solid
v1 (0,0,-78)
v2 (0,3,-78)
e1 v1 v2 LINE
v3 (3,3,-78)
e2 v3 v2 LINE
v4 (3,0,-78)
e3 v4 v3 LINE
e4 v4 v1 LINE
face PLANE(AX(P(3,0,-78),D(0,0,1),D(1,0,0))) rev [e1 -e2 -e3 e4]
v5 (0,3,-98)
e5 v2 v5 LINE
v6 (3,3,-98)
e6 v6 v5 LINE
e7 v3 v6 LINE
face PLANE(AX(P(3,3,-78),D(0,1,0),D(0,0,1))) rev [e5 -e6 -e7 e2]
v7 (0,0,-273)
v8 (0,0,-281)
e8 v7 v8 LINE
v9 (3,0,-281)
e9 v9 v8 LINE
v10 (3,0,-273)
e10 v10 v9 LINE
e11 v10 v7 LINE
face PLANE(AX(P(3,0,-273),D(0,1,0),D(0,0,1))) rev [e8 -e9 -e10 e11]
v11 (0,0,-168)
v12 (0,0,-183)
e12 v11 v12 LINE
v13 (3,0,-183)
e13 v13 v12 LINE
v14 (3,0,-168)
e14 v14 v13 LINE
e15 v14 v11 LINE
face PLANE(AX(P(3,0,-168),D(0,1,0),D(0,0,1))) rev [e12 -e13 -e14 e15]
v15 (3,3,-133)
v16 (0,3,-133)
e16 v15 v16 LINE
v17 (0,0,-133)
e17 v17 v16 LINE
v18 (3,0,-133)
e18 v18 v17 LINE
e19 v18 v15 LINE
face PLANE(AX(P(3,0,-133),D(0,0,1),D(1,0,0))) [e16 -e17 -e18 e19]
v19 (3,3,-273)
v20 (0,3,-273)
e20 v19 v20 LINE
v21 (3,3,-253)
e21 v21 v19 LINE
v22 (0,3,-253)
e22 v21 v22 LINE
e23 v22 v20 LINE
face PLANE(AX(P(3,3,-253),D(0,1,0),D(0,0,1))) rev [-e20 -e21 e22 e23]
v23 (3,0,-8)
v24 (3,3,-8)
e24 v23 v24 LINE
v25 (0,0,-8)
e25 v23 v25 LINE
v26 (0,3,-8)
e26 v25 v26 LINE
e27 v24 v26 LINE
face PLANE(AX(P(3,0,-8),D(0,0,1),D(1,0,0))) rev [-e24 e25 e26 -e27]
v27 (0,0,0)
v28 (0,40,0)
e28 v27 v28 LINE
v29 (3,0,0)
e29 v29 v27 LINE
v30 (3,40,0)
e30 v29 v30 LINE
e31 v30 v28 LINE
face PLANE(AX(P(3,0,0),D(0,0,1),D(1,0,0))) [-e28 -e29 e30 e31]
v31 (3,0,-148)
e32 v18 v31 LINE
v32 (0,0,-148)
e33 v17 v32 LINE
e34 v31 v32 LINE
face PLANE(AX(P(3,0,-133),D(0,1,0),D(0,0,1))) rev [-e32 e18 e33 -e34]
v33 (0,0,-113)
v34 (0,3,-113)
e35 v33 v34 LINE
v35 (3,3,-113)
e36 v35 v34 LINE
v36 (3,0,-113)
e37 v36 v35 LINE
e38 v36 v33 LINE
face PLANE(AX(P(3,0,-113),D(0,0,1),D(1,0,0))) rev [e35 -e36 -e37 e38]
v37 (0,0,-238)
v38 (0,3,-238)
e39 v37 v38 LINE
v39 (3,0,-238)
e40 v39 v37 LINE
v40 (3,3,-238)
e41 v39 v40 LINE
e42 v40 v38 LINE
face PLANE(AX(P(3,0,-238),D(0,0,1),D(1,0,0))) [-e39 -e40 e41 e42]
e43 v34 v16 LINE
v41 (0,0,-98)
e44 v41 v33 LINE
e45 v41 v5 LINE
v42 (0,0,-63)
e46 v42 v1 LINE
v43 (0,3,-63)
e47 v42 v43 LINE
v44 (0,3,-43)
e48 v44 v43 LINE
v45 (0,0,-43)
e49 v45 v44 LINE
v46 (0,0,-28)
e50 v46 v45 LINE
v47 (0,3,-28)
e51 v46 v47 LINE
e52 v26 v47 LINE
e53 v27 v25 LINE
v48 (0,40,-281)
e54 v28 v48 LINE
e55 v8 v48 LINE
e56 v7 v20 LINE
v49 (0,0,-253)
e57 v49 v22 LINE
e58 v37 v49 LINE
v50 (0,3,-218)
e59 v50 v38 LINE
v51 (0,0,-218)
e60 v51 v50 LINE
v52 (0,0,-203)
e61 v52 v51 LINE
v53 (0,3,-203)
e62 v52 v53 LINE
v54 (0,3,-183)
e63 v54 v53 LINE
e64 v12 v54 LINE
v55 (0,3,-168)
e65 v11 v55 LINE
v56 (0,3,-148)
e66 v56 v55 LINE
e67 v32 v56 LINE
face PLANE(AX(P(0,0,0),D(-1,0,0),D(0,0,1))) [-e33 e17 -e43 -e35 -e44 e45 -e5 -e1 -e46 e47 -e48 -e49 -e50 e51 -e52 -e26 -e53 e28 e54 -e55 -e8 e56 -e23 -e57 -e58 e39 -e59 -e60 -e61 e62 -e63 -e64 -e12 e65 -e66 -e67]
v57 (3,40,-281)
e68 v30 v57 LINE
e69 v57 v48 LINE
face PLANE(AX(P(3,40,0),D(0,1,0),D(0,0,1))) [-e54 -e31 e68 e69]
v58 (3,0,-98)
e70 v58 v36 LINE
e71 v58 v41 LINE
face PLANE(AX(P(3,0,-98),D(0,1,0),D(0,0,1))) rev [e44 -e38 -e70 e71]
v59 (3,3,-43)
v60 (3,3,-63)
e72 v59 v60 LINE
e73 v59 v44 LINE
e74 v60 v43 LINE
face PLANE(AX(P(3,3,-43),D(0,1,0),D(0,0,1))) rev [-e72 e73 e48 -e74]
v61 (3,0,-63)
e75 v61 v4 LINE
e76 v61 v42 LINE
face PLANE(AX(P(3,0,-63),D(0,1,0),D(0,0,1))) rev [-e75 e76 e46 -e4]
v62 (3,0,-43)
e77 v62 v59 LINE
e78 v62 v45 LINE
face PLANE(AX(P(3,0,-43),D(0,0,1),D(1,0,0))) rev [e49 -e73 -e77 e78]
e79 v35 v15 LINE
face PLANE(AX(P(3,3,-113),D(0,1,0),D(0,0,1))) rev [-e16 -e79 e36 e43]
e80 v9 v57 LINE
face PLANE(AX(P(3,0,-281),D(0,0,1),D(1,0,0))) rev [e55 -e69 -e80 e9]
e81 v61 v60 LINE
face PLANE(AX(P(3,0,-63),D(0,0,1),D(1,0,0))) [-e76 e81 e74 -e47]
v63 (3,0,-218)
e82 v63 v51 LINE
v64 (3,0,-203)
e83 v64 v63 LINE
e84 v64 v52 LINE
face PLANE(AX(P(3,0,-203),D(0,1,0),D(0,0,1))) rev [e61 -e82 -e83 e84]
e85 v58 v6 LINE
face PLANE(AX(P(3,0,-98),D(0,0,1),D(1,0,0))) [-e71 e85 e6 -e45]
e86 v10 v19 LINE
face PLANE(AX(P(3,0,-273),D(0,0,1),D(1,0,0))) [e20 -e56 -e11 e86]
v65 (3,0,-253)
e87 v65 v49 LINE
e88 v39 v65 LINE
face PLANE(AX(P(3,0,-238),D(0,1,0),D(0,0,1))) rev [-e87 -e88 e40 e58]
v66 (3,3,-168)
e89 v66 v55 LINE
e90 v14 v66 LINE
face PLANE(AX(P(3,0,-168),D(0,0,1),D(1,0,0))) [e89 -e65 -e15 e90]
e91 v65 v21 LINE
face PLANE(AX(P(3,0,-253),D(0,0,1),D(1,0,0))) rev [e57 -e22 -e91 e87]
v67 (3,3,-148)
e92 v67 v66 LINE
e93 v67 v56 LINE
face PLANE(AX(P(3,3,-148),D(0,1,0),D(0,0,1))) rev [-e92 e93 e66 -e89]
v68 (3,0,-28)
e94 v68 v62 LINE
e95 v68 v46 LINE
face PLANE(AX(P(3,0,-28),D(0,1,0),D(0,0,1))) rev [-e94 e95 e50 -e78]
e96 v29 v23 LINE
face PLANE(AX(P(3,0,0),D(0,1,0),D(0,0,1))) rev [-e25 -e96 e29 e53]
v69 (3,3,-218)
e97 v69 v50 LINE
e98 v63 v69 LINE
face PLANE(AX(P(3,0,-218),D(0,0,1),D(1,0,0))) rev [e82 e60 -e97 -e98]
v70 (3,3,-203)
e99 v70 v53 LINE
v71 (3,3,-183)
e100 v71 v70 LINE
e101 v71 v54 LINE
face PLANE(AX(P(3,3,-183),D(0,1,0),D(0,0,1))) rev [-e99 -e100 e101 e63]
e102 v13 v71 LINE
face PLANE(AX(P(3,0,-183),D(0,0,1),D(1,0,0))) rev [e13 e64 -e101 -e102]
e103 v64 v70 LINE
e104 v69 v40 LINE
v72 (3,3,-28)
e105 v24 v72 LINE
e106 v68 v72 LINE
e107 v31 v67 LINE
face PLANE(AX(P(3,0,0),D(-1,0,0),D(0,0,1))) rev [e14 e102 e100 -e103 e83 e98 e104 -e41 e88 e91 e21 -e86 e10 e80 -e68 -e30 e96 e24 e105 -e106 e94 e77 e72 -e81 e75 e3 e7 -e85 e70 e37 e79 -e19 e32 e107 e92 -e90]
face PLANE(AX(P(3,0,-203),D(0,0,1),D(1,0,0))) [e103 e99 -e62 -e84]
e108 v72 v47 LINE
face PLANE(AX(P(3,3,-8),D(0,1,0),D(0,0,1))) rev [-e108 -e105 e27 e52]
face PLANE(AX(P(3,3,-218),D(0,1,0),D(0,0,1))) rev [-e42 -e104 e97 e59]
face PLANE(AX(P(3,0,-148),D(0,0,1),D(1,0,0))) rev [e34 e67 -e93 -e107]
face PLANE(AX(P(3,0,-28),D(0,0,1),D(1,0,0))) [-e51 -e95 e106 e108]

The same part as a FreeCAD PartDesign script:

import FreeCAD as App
import Part
import Sketcher
from FreeCAD import Vector
Q = App.Units.Quantity

doc = App.newDocument("Part")
body = doc.addObject("PartDesign::Body", "Body")

sketch1 = doc.addObject("Sketcher::SketchObject", "Sketch")
body.addObject(sketch1)
sketch1.AttachmentSupport = (doc.YZ_Plane, [""])
sketch1.MapMode = "FlatFace"
sketch1.addGeometry([
    Part.LineSegment(Vector(0, -28, 0), Vector(0, -43, 0)),
    Part.LineSegment(Vector(0, -43, 0), Vector(3, -43, 0)),
    Part.LineSegment(Vector(3, -43, 0), Vector(3, -63, 0)),
    Part.LineSegment(Vector(3, -63, 0), Vector(0, -63, 0)),
    Part.LineSegment(Vector(0, -63, 0), Vector(0, -78, 0)),
    Part.LineSegment(Vector(0, -78, 0), Vector(3, -78, 0)),
    Part.LineSegment(Vector(3, -78, 0), Vector(3, -98, 0)),
    Part.LineSegment(Vector(3, -98, 0), Vector(0, -98, 0)),
    Part.LineSegment(Vector(0, -98, 0), Vector(0, -113, 0)),
    Part.LineSegment(Vector(0, -113, 0), Vector(3, -113, 0)),
    Part.LineSegment(Vector(3, -113, 0), Vector(3, -133, 0)),
    Part.LineSegment(Vector(3, -133, 0), Vector(0, -133, 0)),
    Part.LineSegment(Vector(0, -133, 0), Vector(0, -148, 0)),
    Part.LineSegment(Vector(0, -148, 0), Vector(3, -148, 0)),
    Part.LineSegment(Vector(3, -148, 0), Vector(3, -168, 0)),
    Part.LineSegment(Vector(3, -168, 0), Vector(0, -168, 0)),
    Part.LineSegment(Vector(0, -168, 0), Vector(0, -183, 0)),
    Part.LineSegment(Vector(0, -183, 0), Vector(3, -183, 0)),
    Part.LineSegment(Vector(3, -183, 0), Vector(3, -203, 0)),
    Part.LineSegment(Vector(3, -203, 0), Vector(0, -203, 0)),
    Part.LineSegment(Vector(0, -203, 0), Vector(0, -218, 0)),
    Part.LineSegment(Vector(0, -218, 0), Vector(3, -218, 0)),
    Part.LineSegment(Vector(3, -218, 0), Vector(3, -238, 0)),
    Part.LineSegment(Vector(3, -238, 0), Vector(0, -238, 0)),
    Part.LineSegment(Vector(0, -238, 0), Vector(0, -253, 0)),
    Part.LineSegment(Vector(0, -253, 0), Vector(3, -253, 0)),
    Part.LineSegment(Vector(3, -253, 0), Vector(3, -273, 0)),
    Part.LineSegment(Vector(3, -273, 0), Vector(0, -273, 0)),
    Part.LineSegment(Vector(0, -273, 0), Vector(0, -281, 0)),
    Part.LineSegment(Vector(0, -281, 0), Vector(40, -281, 0)),
    Part.LineSegment(Vector(40, -281, 0), Vector(40, 0, 0)),
    Part.LineSegment(Vector(40, 0, 0), Vector(0, 0, 0)),
    Part.LineSegment(Vector(0, 0, 0), Vector(0, -8, 0)),
    Part.LineSegment(Vector(0, -8, 0), Vector(3, -8, 0)),
    Part.LineSegment(Vector(3, -8, 0), Vector(3, -28, 0)),
    Part.LineSegment(Vector(3, -28, 0), Vector(0, -28, 0)),
], False)
sketch1.addConstraint([
    Sketcher.Constraint("Coincident", 0, 2, 1, 1),
    Sketcher.Constraint("Coincident", 1, 2, 2, 1),
    Sketcher.Constraint("Coincident", 2, 2, 3, 1),
    Sketcher.Constraint("Coincident", 3, 2, 4, 1),
    Sketcher.Constraint("Coincident", 4, 2, 5, 1),
    Sketcher.Constraint("Coincident", 5, 2, 6, 1),
    Sketcher.Constraint("Coincident", 6, 2, 7, 1),
    Sketcher.Constraint("Coincident", 7, 2, 8, 1),
    Sketcher.Constraint("Coincident", 8, 2, 9, 1),
    Sketcher.Constraint("Coincident", 9, 2, 10, 1),
    Sketcher.Constraint("Coincident", 10, 2, 11, 1),
    Sketcher.Constraint("Coincident", 11, 2, 12, 1),
    Sketcher.Constraint("Coincident", 12, 2, 13, 1),
    Sketcher.Constraint("Coincident", 13, 2, 14, 1),
    Sketcher.Constraint("Coincident", 14, 2, 15, 1),
    Sketcher.Constraint("Coincident", 15, 2, 16, 1),
    Sketcher.Constraint("Coincident", 16, 2, 17, 1),
    Sketcher.Constraint("Coincident", 17, 2, 18, 1),
    Sketcher.Constraint("Coincident", 18, 2, 19, 1),
    Sketcher.Constraint("Coincident", 19, 2, 20, 1),
    Sketcher.Constraint("Coincident", 20, 2, 21, 1),
    Sketcher.Constraint("Coincident", 21, 2, 22, 1),
    Sketcher.Constraint("Coincident", 22, 2, 23, 1),
    Sketcher.Constraint("Coincident", 23, 2, 24, 1),
    Sketcher.Constraint("Coincident", 24, 2, 25, 1),
    Sketcher.Constraint("Coincident", 25, 2, 26, 1),
    Sketcher.Constraint("Coincident", 26, 2, 27, 1),
    Sketcher.Constraint("Coincident", 27, 2, 28, 1),
    Sketcher.Constraint("Coincident", 28, 2, 29, 1),
    Sketcher.Constraint("Coincident", 29, 2, 30, 1),
    Sketcher.Constraint("Coincident", 30, 2, 31, 1),
    Sketcher.Constraint("Coincident", 31, 2, 32, 1),
    Sketcher.Constraint("Coincident", 32, 2, 33, 1),
    Sketcher.Constraint("Coincident", 33, 2, 34, 1),
    Sketcher.Constraint("Coincident", 34, 2, 35, 1),
    Sketcher.Constraint("Coincident", 35, 2, 0, 1),
    Sketcher.Constraint("Vertical", 0),
    Sketcher.Constraint("Horizontal", 1),
    Sketcher.Constraint("Vertical", 2),
    Sketcher.Constraint("Horizontal", 3),
    Sketcher.Constraint("Vertical", 4),
    Sketcher.Constraint("Horizontal", 5),
    Sketcher.Constraint("Vertical", 6),
    Sketcher.Constraint("Horizontal", 7),
    Sketcher.Constraint("Vertical", 8),
    Sketcher.Constraint("Horizontal", 9),
    Sketcher.Constraint("Vertical", 10),
    Sketcher.Constraint("Horizontal", 11),
    Sketcher.Constraint("Vertical", 12),
    Sketcher.Constraint("Horizontal", 13),
    Sketcher.Constraint("Vertical", 14),
    Sketcher.Constraint("Horizontal", 15),
    Sketcher.Constraint("Vertical", 16),
    Sketcher.Constraint("Horizontal", 17),
    Sketcher.Constraint("Vertical", 18),
    Sketcher.Constraint("Horizontal", 19),
    Sketcher.Constraint("Vertical", 20),
    Sketcher.Constraint("Horizontal", 21),
    Sketcher.Constraint("Vertical", 22),
    Sketcher.Constraint("Horizontal", 23),
    Sketcher.Constraint("Vertical", 24),
    Sketcher.Constraint("Horizontal", 25),
    Sketcher.Constraint("Vertical", 26),
    Sketcher.Constraint("Horizontal", 27),
    Sketcher.Constraint("Vertical", 28),
    Sketcher.Constraint("Horizontal", 29),
    Sketcher.Constraint("Vertical", 30),
    Sketcher.Constraint("Horizontal", 31),
    Sketcher.Constraint("Vertical", 32),
    Sketcher.Constraint("Horizontal", 33),
    Sketcher.Constraint("Vertical", 34),
    Sketcher.Constraint("Horizontal", 35),
    Sketcher.Constraint("Coincident", 31, 2, -1, 1),
    Sketcher.Constraint("PointOnObject", 0, 2, -2),
    Sketcher.Constraint("PointOnObject", 3, 2, -2),
    Sketcher.Constraint("PointOnObject", 7, 2, -2),
    Sketcher.Constraint("PointOnObject", 11, 2, -2),
    Sketcher.Constraint("PointOnObject", 15, 2, -2),
    Sketcher.Constraint("PointOnObject", 19, 2, -2),
    Sketcher.Constraint("PointOnObject", 23, 2, -2),
    Sketcher.Constraint("PointOnObject", 27, 2, -2),
    Sketcher.Constraint("Vertical", 2, 2, 5, 2),
    Sketcher.Constraint("Vertical", 6, 2, 9, 2),
    Sketcher.Constraint("Vertical", 10, 2, 13, 2),
    Sketcher.Constraint("Vertical", 14, 2, 17, 2),
    Sketcher.Constraint("Vertical", 18, 2, 21, 2),
    Sketcher.Constraint("Vertical", 22, 2, 25, 2),
    Sketcher.Constraint("Vertical", 26, 2, 33, 2),
    Sketcher.Constraint("Equal", 0, 4),
    Sketcher.Constraint("Equal", 2, 6),
    Sketcher.Constraint("Equal", 4, 8),
    Sketcher.Constraint("Equal", 6, 10),
    Sketcher.Constraint("Equal", 8, 12),
    Sketcher.Constraint("Equal", 10, 14),
    Sketcher.Constraint("Equal", 12, 16),
    Sketcher.Constraint("Equal", 14, 18),
    Sketcher.Constraint("Equal", 16, 20),
    Sketcher.Constraint("Equal", 18, 22),
    Sketcher.Constraint("Equal", 20, 24),
    Sketcher.Constraint("Equal", 22, 26),
    Sketcher.Constraint("Equal", 28, 32),
    Sketcher.Constraint("Equal", 26, 34),
    Sketcher.Constraint("DistanceX", 1, 1, 1, 2, Q("3 mm")),
    Sketcher.Constraint("DistanceX", 29, 1, 29, 2, Q("40 mm")),
    Sketcher.Constraint("DistanceY", 0, 2, 0, 1, Q("15 mm")),
    Sketcher.Constraint("DistanceY", 2, 2, 2, 1, Q("20 mm")),
    Sketcher.Constraint("DistanceY", 28, 2, 28, 1, Q("8 mm")),
])
pad1 = doc.addObject("PartDesign::Pad", "Pad")
body.addObject(pad1)
pad1.Profile = sketch1
pad1.Length = 3

doc.recompute()
